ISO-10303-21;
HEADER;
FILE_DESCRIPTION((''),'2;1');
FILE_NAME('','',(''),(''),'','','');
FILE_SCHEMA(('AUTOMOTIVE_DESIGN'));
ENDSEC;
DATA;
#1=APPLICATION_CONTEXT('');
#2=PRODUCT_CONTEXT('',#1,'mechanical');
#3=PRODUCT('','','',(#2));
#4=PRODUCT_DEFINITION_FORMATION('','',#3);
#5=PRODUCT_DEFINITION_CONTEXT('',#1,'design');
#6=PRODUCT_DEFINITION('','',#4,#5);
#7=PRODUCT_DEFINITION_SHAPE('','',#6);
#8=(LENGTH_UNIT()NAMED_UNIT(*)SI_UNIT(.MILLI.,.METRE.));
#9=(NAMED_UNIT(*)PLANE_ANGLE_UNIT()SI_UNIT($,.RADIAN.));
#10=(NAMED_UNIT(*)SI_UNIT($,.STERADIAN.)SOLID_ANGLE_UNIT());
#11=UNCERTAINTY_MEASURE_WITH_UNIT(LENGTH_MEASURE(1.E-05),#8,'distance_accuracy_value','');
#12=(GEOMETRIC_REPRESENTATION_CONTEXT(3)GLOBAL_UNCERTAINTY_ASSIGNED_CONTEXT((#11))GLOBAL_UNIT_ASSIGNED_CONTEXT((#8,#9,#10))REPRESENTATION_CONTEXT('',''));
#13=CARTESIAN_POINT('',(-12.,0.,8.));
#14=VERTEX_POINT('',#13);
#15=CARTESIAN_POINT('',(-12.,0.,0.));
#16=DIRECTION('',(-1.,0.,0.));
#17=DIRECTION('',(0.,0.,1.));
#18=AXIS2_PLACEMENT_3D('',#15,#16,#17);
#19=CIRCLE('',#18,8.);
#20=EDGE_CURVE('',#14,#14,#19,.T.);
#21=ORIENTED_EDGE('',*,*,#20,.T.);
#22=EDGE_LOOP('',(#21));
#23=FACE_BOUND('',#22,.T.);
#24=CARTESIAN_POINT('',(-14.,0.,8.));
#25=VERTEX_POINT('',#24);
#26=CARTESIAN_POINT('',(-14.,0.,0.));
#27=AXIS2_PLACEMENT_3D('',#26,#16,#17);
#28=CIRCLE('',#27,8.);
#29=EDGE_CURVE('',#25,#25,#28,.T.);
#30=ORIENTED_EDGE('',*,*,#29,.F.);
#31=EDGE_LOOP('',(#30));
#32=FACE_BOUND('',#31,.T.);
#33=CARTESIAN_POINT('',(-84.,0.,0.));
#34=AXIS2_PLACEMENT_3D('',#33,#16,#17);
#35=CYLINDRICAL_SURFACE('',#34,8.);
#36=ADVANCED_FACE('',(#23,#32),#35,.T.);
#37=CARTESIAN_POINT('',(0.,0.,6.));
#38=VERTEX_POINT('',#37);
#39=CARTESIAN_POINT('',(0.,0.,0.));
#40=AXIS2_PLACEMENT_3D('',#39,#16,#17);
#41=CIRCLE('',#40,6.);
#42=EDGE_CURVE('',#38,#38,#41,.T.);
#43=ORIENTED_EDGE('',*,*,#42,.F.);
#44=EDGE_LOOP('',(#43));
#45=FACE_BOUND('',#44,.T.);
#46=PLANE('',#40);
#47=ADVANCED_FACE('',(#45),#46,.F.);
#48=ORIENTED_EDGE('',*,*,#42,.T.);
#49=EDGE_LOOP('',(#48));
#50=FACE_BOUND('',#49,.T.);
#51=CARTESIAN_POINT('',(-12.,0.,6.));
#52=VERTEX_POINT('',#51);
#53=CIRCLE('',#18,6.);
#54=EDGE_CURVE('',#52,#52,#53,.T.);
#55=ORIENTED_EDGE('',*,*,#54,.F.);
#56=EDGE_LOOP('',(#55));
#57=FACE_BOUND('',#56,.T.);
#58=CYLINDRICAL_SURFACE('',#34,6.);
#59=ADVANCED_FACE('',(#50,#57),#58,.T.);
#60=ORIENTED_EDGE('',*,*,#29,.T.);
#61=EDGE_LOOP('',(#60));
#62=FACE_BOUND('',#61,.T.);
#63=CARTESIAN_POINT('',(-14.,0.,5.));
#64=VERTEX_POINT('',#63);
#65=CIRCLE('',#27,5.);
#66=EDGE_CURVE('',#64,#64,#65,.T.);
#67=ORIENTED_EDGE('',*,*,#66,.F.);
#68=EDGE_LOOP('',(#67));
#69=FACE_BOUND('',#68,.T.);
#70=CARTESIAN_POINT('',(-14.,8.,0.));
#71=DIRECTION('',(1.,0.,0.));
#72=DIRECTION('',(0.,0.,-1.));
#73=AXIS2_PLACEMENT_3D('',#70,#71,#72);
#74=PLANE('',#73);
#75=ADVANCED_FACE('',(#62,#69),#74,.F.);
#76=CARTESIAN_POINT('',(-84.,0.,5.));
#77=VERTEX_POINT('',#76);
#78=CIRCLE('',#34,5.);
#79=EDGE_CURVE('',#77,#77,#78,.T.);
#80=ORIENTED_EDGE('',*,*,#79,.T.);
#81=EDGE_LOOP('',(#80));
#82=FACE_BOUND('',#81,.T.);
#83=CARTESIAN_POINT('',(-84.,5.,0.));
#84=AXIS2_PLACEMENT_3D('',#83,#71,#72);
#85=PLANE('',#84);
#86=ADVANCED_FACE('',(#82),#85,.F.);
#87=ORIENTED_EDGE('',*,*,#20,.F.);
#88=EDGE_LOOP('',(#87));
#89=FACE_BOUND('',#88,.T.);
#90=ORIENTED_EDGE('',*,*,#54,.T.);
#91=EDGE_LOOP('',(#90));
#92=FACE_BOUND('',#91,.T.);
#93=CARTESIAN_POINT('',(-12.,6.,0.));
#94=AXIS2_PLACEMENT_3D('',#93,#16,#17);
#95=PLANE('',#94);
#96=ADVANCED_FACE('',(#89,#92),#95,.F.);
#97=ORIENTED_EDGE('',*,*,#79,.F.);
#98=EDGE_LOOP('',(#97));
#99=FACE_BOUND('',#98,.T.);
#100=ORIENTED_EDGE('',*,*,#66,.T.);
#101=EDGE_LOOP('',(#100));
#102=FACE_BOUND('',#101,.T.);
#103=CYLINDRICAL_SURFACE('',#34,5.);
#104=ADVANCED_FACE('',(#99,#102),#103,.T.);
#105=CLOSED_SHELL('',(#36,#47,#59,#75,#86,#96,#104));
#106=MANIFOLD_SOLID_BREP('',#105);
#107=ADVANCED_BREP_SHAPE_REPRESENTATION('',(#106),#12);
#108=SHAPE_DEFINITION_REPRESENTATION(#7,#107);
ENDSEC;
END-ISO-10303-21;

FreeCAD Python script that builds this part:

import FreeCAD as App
import Part
import Sketcher

V = App.Vector
Q = App.Units.Quantity


def add_polygon(sketch, points):
    """Adds a closed chain of lines whose ends are joined by coincident constraints."""
    first, n = sketch.GeometryCount, len(points)
    for a, b in zip(points, points[1:] + points[:1]):
        sketch.addGeometry(Part.LineSegment(App.Vector(*a, 0), App.Vector(*b, 0)), False)
    for i in range(n):
        sketch.addConstraint(Sketcher.Constraint("Coincident", first + i, 2, first + (i + 1) % n, 1))

doc = App.newDocument("Part")
params = doc.addObject("Spreadsheet::Sheet", "Params")
for row, (alias, value) in enumerate([
    ("sketch1_width", "12 mm"),
    ("sketch1_width2", "2 mm"),
    ("sketch1_width3", "70 mm"),
    ("sketch1_height", "6 mm"),
    ("sketch1_height2", "3 mm"),
    ("revolution_angle", "360 deg"),
], start=1):
    params.set(f"A{row}", alias)
    params.set(f"B{row}", "=" + value)
    params.setAlias(f"B{row}", alias)

body = doc.addObject("PartDesign::Body", "Body")

# Sketch on XY plane
sketch1 = body.newObject("Sketcher::SketchObject", "Sketch")
sketch1.AttachmentSupport = (doc.getObject("XY_Plane"), [""])
sketch1.MapMode = "FlatFace"
add_polygon(sketch1, [(0, 0), (0, 6), (-12, 6), (-12, 8), (-14, 8), (-14, 5), (-84, 5), (-84, 0)])  # lines 0-7
sketch1.addConstraint([
    Sketcher.Constraint("Vertical", 0),
    Sketcher.Constraint("Horizontal", 1),
    Sketcher.Constraint("Vertical", 2),
    Sketcher.Constraint("Horizontal", 3),
    Sketcher.Constraint("Vertical", 4),
    Sketcher.Constraint("Horizontal", 5),
    Sketcher.Constraint("Vertical", 6),
    Sketcher.Constraint("Horizontal", 7),
    Sketcher.Constraint("Coincident", 7, 2, -1, 1),
    Sketcher.Constraint("Equal", 3, 2),
    Sketcher.Constraint("DistanceX", 1, 2, 1, 1, Q("12 mm")),
    Sketcher.Constraint("DistanceX", 3, 2, 3, 1, Q("2 mm")),
    Sketcher.Constraint("DistanceX", 5, 2, 5, 1, Q("70 mm")),
    Sketcher.Constraint("DistanceY", 0, 1, 0, 2, Q("6 mm")),
    Sketcher.Constraint("DistanceY", 4, 2, 4, 1, Q("3 mm")),
])
sketch1.setExpression("Constraints[18]", "Params.sketch1_width")
sketch1.setExpression("Constraints[19]", "Params.sketch1_width2")
sketch1.setExpression("Constraints[20]", "Params.sketch1_width3")
sketch1.setExpression("Constraints[21]", "Params.sketch1_height")
sketch1.setExpression("Constraints[22]", "Params.sketch1_height2")
revolution = body.newObject("PartDesign::Revolution", "Revolution")
revolution.Profile = sketch1
revolution.ReferenceAxis = (sketch1, ["H_Axis"])
revolution.setExpression("Angle", "Params.revolution_angle")

doc.recompute()
